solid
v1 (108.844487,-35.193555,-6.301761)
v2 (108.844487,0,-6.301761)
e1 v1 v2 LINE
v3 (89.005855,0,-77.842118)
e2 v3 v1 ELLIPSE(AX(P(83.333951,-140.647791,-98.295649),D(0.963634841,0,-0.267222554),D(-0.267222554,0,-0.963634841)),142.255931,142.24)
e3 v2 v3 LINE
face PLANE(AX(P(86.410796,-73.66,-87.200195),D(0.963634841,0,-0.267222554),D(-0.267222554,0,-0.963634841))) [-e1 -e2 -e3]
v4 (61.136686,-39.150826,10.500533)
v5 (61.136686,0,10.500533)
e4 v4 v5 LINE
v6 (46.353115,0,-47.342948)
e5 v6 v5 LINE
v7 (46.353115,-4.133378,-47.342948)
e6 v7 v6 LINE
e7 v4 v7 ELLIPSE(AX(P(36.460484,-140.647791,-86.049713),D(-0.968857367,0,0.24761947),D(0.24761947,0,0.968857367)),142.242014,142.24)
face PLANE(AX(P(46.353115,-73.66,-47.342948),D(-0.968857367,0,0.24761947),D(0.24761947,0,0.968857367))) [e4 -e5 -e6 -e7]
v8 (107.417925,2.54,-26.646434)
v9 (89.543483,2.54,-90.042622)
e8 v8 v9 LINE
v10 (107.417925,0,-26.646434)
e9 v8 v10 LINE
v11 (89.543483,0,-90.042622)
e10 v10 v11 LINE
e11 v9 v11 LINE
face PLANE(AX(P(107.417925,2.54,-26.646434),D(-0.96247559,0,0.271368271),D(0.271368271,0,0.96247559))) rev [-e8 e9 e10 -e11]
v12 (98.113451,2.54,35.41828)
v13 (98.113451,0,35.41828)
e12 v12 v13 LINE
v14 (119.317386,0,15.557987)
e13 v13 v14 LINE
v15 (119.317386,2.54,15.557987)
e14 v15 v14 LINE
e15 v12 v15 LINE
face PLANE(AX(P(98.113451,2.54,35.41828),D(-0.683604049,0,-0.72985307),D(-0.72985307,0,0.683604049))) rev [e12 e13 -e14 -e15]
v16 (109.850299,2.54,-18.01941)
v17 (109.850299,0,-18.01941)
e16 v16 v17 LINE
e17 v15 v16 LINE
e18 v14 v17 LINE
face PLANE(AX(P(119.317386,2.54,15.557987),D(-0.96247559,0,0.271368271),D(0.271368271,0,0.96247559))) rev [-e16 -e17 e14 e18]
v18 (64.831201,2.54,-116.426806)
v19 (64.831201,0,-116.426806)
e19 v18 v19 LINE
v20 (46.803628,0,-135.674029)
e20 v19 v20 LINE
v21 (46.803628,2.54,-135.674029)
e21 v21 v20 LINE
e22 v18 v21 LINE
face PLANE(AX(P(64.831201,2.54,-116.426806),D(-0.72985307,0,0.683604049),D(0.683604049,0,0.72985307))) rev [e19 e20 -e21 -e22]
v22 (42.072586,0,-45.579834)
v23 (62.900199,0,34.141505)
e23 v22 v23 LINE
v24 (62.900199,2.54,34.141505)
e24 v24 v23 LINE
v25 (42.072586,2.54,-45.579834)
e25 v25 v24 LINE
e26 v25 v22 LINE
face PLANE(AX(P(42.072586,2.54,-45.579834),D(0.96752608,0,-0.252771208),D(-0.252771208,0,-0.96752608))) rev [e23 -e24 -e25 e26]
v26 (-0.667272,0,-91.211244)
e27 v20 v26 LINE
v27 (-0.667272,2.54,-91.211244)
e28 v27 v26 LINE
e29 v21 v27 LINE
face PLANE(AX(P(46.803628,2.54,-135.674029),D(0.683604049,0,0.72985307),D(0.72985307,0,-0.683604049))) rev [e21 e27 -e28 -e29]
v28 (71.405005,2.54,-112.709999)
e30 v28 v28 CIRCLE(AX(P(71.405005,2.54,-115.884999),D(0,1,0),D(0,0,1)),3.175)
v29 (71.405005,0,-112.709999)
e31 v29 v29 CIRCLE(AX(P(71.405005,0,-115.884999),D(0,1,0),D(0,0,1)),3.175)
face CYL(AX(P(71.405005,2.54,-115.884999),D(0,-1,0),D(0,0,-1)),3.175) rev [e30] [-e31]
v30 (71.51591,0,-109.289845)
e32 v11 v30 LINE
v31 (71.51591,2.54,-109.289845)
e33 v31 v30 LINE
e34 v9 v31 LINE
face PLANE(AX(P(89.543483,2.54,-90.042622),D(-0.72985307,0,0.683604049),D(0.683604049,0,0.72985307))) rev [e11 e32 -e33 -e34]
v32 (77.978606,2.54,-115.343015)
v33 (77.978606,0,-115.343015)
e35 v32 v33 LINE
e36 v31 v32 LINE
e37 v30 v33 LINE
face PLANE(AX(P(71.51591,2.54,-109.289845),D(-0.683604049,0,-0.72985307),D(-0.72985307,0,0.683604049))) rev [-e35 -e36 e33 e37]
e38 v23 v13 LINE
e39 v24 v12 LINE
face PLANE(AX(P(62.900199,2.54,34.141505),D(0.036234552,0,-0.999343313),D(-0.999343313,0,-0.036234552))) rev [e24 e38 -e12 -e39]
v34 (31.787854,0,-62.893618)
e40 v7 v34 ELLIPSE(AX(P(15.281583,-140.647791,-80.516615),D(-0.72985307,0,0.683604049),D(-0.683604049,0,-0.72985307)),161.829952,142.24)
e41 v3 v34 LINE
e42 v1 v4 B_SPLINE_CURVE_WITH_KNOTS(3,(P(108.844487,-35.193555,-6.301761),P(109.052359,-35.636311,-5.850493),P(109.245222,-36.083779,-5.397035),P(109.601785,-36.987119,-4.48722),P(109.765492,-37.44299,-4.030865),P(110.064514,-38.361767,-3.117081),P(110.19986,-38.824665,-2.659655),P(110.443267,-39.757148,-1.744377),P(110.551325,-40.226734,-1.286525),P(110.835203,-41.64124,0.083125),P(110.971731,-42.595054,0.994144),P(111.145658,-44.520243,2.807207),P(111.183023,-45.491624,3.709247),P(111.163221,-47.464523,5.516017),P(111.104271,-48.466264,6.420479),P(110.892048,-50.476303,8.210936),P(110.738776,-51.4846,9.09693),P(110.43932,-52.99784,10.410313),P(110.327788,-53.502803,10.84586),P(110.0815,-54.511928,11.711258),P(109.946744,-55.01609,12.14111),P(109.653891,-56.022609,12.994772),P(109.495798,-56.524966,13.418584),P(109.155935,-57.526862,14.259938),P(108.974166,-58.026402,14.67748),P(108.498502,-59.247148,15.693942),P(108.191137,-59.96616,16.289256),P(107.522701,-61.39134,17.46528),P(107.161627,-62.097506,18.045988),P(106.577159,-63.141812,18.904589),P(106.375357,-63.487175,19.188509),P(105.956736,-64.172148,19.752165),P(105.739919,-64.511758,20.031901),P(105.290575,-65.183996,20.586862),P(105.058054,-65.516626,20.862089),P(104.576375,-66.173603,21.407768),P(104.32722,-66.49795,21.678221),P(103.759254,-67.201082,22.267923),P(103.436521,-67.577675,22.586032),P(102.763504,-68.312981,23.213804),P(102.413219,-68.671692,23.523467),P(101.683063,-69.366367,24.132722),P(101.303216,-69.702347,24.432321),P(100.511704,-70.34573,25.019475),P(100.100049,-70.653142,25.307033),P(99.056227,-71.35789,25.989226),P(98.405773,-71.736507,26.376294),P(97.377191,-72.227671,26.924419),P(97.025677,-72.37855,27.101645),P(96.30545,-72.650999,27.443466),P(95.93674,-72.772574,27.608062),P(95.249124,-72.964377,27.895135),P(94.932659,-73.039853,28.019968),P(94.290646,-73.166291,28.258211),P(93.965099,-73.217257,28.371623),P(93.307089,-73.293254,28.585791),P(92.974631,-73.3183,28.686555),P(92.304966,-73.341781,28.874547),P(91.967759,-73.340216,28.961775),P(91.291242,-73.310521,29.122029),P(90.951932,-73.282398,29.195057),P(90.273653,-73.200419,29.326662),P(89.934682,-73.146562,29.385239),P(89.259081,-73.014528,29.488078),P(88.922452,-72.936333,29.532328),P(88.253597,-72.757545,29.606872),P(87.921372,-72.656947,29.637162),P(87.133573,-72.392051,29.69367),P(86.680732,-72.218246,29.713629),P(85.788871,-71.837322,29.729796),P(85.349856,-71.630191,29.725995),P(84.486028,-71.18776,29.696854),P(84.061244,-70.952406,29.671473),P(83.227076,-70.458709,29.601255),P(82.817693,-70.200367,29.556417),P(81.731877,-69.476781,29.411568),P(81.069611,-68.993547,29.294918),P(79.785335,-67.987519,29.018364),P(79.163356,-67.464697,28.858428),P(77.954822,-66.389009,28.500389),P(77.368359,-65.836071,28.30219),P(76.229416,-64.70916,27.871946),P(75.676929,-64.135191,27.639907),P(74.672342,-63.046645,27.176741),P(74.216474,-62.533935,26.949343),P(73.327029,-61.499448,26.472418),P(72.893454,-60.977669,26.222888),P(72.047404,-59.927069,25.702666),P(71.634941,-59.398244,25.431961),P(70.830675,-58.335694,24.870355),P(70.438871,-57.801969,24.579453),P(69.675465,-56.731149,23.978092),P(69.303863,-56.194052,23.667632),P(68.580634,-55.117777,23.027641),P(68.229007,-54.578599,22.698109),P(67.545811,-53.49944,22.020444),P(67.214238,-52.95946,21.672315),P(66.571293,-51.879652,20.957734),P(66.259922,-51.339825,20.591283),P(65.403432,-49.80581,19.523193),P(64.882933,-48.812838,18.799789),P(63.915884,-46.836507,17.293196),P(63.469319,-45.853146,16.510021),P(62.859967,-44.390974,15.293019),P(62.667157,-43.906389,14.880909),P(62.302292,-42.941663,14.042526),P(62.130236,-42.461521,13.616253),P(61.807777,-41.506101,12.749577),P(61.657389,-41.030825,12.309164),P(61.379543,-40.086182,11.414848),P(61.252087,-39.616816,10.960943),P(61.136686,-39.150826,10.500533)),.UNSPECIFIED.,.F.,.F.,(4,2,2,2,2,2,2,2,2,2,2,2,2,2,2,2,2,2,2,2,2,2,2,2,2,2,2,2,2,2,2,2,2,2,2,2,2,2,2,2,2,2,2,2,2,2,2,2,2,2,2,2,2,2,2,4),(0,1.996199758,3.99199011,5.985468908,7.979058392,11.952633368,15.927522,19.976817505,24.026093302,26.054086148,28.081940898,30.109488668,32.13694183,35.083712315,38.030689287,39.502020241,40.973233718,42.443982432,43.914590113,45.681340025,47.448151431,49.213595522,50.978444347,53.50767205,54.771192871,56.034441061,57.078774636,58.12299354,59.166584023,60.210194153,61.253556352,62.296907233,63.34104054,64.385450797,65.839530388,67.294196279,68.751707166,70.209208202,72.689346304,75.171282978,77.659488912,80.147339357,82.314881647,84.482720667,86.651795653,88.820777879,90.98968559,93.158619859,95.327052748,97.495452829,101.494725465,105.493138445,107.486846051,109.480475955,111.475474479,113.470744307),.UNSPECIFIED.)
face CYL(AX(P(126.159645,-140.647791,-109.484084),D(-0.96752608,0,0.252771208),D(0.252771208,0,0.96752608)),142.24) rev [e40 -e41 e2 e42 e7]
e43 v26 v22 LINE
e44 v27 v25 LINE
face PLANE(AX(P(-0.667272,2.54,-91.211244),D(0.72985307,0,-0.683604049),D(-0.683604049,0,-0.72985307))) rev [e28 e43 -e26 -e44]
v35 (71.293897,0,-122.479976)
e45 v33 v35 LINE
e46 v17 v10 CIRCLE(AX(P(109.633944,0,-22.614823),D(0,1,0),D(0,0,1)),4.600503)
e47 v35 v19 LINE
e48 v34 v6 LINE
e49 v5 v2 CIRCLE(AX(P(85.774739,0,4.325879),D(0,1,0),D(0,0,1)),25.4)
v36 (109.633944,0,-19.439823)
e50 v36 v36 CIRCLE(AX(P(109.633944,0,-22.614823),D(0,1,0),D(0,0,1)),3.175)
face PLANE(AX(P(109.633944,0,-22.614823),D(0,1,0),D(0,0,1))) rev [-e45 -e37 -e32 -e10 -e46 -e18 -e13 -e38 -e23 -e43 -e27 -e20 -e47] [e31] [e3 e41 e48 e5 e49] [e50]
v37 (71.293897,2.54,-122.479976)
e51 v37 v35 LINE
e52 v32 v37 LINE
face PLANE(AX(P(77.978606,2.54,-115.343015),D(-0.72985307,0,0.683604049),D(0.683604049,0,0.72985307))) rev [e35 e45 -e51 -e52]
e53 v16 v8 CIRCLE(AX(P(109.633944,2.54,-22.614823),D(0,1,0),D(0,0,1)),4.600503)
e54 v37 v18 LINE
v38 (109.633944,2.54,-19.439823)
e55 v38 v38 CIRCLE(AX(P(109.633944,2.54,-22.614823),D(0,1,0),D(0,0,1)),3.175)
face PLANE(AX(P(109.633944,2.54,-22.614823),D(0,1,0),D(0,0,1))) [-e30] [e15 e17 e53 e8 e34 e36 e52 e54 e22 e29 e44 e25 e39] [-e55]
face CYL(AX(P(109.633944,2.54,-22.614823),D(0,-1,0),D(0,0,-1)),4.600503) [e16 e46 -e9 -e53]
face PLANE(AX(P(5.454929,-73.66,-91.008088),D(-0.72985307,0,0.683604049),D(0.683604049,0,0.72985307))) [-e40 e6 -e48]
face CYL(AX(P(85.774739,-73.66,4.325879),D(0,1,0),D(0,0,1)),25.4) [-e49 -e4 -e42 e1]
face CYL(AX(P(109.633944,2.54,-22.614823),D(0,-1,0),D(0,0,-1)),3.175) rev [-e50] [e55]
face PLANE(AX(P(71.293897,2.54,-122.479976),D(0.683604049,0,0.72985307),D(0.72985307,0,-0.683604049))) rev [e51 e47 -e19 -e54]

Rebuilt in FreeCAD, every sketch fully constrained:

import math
import FreeCAD as App
import Part
import Sketcher

V = App.Vector
Q = App.Units.Quantity

doc = App.newDocument("Part")
body = doc.addObject("PartDesign::Body", "Body")

sketch1 = doc.addObject("Sketcher::SketchObject", "Sketch")
body.addObject(sketch1)
sketch1.AttachmentSupport = (doc.XZ_Plane, [""])
sketch1.MapMode = "FlatFace"
sketch1.addGeometry(Part.LineSegment(V(-0.7, -91.2, 0), V(42.1, -45.6, 0)), False)
sketch1.addGeometry(Part.LineSegment(V(42.1, -45.6, 0), V(62.9, 34.1, 0)), False)
sketch1.addGeometry(Part.LineSegment(V(62.9, 34.1, 0), V(98.1, 35.4, 0)), False)
sketch1.addGeometry(Part.LineSegment(V(98.1, 35.4, 0), V(119.3, 15.6, 0)), False)
sketch1.addGeometry(Part.LineSegment(V(119.3, 15.6, 0), V(109.9, -18, 0)), False)
sketch1.addGeometry(Part.ArcOfCircle(Part.Circle(V(109.6, -22.6, 0), V(0, 0, 1), 4.6), math.radians(-119), math.radians(87)), False)
sketch1.addGeometry(Part.LineSegment(V(107.4, -26.6, 0), V(89.5, -90, 0)), False)
sketch1.addGeometry(Part.LineSegment(V(89.5, -90, 0), V(71.5, -109.3, 0)), False)
sketch1.addGeometry(Part.LineSegment(V(71.5, -109.3, 0), V(78, -115.3, 0)), False)
sketch1.addGeometry(Part.LineSegment(V(78, -115.3, 0), V(71.3, -122.5, 0)), False)
sketch1.addGeometry(Part.LineSegment(V(71.3, -122.5, 0), V(64.8, -116.4, 0)), False)
sketch1.addGeometry(Part.LineSegment(V(64.8, -116.4, 0), V(46.8, -135.7, 0)), False)
sketch1.addGeometry(Part.LineSegment(V(46.8, -135.7, 0), V(-0.7, -91.2, 0)), False)
sketch1.addGeometry(Part.Circle(V(109.6, -22.6, 0), V(0, 0, 1), 3.2), False)
sketch1.addGeometry(Part.Circle(V(71.4, -115.9, 0), V(0, 0, 1), 3.2), False)
sketch1.addConstraint(Sketcher.Constraint("Coincident", 0, 2, 1, 1))
sketch1.addConstraint(Sketcher.Constraint("Coincident", 1, 2, 2, 1))
sketch1.addConstraint(Sketcher.Constraint("Coincident", 2, 2, 3, 1))
sketch1.addConstraint(Sketcher.Constraint("Coincident", 3, 2, 4, 1))
sketch1.addConstraint(Sketcher.Constraint("Coincident", 4, 2, 5, 2))
sketch1.addConstraint(Sketcher.Constraint("Coincident", 5, 1, 6, 1))
sketch1.addConstraint(Sketcher.Constraint("Coincident", 6, 2, 7, 1))
sketch1.addConstraint(Sketcher.Constraint("Coincident", 7, 2, 8, 1))
sketch1.addConstraint(Sketcher.Constraint("Coincident", 8, 2, 9, 1))
sketch1.addConstraint(Sketcher.Constraint("Coincident", 9, 2, 10, 1))
sketch1.addConstraint(Sketcher.Constraint("Coincident", 10, 2, 11, 1))
sketch1.addConstraint(Sketcher.Constraint("Coincident", 11, 2, 12, 1))
sketch1.addConstraint(Sketcher.Constraint("Coincident", 12, 2, 0, 1))
sketch1.addConstraint(Sketcher.Constraint("Coincident", 13, 3, 5, 3))
sketch1.addConstraint(Sketcher.Constraint("Equal", 13, 14))
sketch1.addConstraint(Sketcher.Constraint("Perpendicular", 0, 3))
sketch1.addConstraint(Sketcher.Constraint("Parallel", 4, 6))
sketch1.addConstraint(Sketcher.Constraint("Perpendicular", 3, 7))
sketch1.addConstraint(Sketcher.Constraint("Perpendicular", 7, 8))
sketch1.addConstraint(Sketcher.Constraint("Perpendicular", 8, 9))
sketch1.addConstraint(Sketcher.Constraint("Perpendicular", 9, 10))
sketch1.addConstraint(Sketcher.Constraint("Perpendicular", 10, 11))
sketch1.addConstraint(Sketcher.Constraint("Perpendicular", 11, 12))
sketch1.addConstraint(Sketcher.Constraint("Equal", 8, 10))
sketch1.addConstraint(Sketcher.Constraint("Equal", 7, 11))
sketch1.addConstraint(Sketcher.Constraint("Diameter", 13, Q("0.25 in")))
sketch1.addConstraint(Sketcher.Constraint("Radius", 5, 4.600503))
sketch1.addConstraint(Sketcher.Constraint("DistanceY", 14, 3, -1, 1, 115.884999))
sketch1.addConstraint(Sketcher.Constraint("DistanceX", -1, 1, 1, 2, 62.900199))
sketch1.addConstraint(Sketcher.Constraint("DistanceX", -1, 1, 4, 2, 109.850299))
sketch1.addConstraint(Sketcher.Constraint("DistanceX", -1, 1, 10, 2, 64.831201))
sketch1.addConstraint(Sketcher.Constraint("DistanceX", 0, 2, 3, 2, 77.2448))
sketch1.addConstraint(Sketcher.Constraint("DistanceY", 6, 2, 5, 3, 67.427799))
sketch1.addConstraint(Sketcher.Constraint("DistanceX", 14, 3, 8, 2, 6.573601))
sketch1.addConstraint(Sketcher.Constraint("DistanceX", 12, 2, 11, 2, 47.470901))
sketch1.addConstraint(Sketcher.Constraint("DistanceY", 7, 2, 12, 2, 18.078601))
sketch1.addConstraint(Sketcher.Constraint("Distance", 2, 35.236391))
sketch1.addConstraint(Sketcher.Constraint("Distance", 4, 34.886492))
sketch1.addConstraint(Sketcher.Constraint("Distance", 6, 65.86784))
sketch1.addConstraint(Sketcher.Constraint("Distance", 8, 8.85479))
sketch1.addConstraint(Sketcher.Constraint("DistanceX", -1, 1, 2, 2, 98.113451))
sketch1.addConstraint(Sketcher.Constraint("DistanceY", -1, 1, 2, 2, 35.41828))
sketch1.addConstraint(Sketcher.Constraint("DistanceY", 4, 2, -1, 1, 18.01941))
sketch1.addConstraint(Sketcher.Constraint("DistanceY", 6, 2, -1, 1, 90.042622))
sketch1.addConstraint(Sketcher.Constraint("DistanceX", -1, 1, 7, 2, 71.51591))
pad1 = doc.addObject("PartDesign::Pad", "Pad")
body.addObject(pad1)
pad1.Profile = sketch1
pad1.Length = Q("0.1 in")
pad1.Reversed = True

sketch2 = doc.addObject("Sketcher::SketchObject", "Sketch001")
body.addObject(sketch2)
sketch2.AttachmentSupport = (doc.XZ_Plane, [""])
sketch2.MapMode = "FlatFace"
sketch2.AttachmentOffset = App.Placement(V(0, 0, -0.1 * 25.4), App.Rotation())
sketch2.addGeometry(Part.LineSegment(V(47, -130, 0), V(5, -91, 0)), False)
sketch2.addGeometry(Part.LineSegment(V(5, -91, 0), V(46, -47, 0)), False)
sketch2.addGeometry(Part.LineSegment(V(46, -47, 0), V(61, 11, 0)), False)
sketch2.addGeometry(Part.ArcOfCircle(Part.Circle(V(86, 4, 0), V(0, 0, 1), 25), math.radians(-25), math.radians(166)), False)
sketch2.addGeometry(Part.LineSegment(V(109, -6, 0), V(86, -87, 0)), False)
sketch2.addGeometry(Part.LineSegment(V(86, -87, 0), V(47, -130, 0)), False)
sketch2.addConstraint(Sketcher.Constraint("Coincident", 0, 2, 1, 1))
sketch2.addConstraint(Sketcher.Constraint("Coincident", 1, 2, 2, 1))
sketch2.addConstraint(Sketcher.Constraint("Coincident", 2, 2, 3, 2))
sketch2.addConstraint(Sketcher.Constraint("Coincident", 3, 1, 4, 1))
sketch2.addConstraint(Sketcher.Constraint("Coincident", 4, 2, 5, 1))
sketch2.addConstraint(Sketcher.Constraint("Coincident", 5, 2, 0, 1))
sketch2.addConstraint(Sketcher.Constraint("Perpendicular", 0, 1))
sketch2.addConstraint(Sketcher.Constraint("Radius", 3, Q("1 in")))
sketch2.addConstraint(Sketcher.Constraint("DistanceX", -1, 1, 4, 2, Q("3.4019999 in")))
sketch2.addConstraint(Sketcher.Constraint("DistanceY", 0, 2, 1, 2, Q("1.7191 in")))
sketch2.addConstraint(Sketcher.Constraint("Distance", 1, 59.827301))
sketch2.addConstraint(Sketcher.Constraint("DistanceX", 2, 2, 3, 1, 47.707801))
sketch2.addConstraint(Sketcher.Constraint("DistanceX", 0, 2, 5, 2, 41.348699))
sketch2.addConstraint(Sketcher.Constraint("DistanceY", 5, 2, 3, 3, 134.062499))
sketch2.addConstraint(Sketcher.Constraint("Distance", 4, 83.951338))
sketch2.addConstraint(Sketcher.Constraint("Distance", 5, 58.121211))
sketch2.addConstraint(Sketcher.Constraint("DistanceX", -1, 1, 3, 3, 85.774739))
sketch2.addConstraint(Sketcher.Constraint("DistanceY", -1, 1, 3, 3, 4.325879))
sketch2.addConstraint(Sketcher.Constraint("DistanceX", -1, 1, 0, 2, 5.454929))
pad2 = doc.addObject("PartDesign::Pad", "Pad001")
body.addObject(pad2)
pad2.Profile = sketch2
pad2.Length = Q("3 in")

sketch3 = doc.addObject("Sketcher::SketchObject", "Sketch002")
body.addObject(sketch3)
sketch3.Placement = App.Placement(V(50.531559, 0, -13.201632), App.Rotation(V(0.252771208, 0, 0.96752608), V(0, 0.999999999, 0), V(-0.96752608, 0, 0.252771208), "ZXY"))
sketch3.addGeometry(Part.LineSegment(V(-120, -76, 0), V(53, -76, 0)), False)
sketch3.addGeometry(Part.ArcOfCircle(Part.Circle(V(-74, -141, 0), V(0, 0, 1), 142), math.radians(27), math.radians(81)), False)
sketch3.addGeometry(Part.LineSegment(V(-53, 0, 0), V(-120, 0, 0)), False)
sketch3.addGeometry(Part.LineSegment(V(-120, 0, 0), V(-120, -76, 0)), False)
sketch3.addConstraint(Sketcher.Constraint("Coincident", 0, 2, 1, 1))
sketch3.addConstraint(Sketcher.Constraint("Coincident", 1, 2, 2, 1))
sketch3.addConstraint(Sketcher.Constraint("Coincident", 2, 2, 3, 1))
sketch3.addConstraint(Sketcher.Constraint("Coincident", 3, 2, 0, 1))
sketch3.addConstraint(Sketcher.Constraint("Horizontal", 0))
sketch3.addConstraint(Sketcher.Constraint("Horizontal", 2))
sketch3.addConstraint(Sketcher.Constraint("Vertical", 3))
sketch3.addConstraint(Sketcher.Constraint("PointOnObject", 1, 2, -1))
sketch3.addConstraint(Sketcher.Constraint("Radius", 1, Q("5.6 in")))
sketch3.addConstraint(Sketcher.Constraint("DistanceY", 3, 2, 3, 1, Q("3 in")))
sketch3.addConstraint(Sketcher.Constraint("DistanceX", 2, 2, 2, 1, 66.770179))
sketch3.addConstraint(Sketcher.Constraint("DistanceX", 0, 1, 0, 2, 172.348973))
sketch3.addConstraint(Sketcher.Constraint("DistanceX", 1, 3, -1, 1, 74.039181))
pocket1 = doc.addObject("PartDesign::Pocket", "Pocket")
body.addObject(pocket1)
pocket1.Profile = sketch3
pocket1.Type = "ThroughAll"
pocket1.Midplane = True

doc.recompute()
